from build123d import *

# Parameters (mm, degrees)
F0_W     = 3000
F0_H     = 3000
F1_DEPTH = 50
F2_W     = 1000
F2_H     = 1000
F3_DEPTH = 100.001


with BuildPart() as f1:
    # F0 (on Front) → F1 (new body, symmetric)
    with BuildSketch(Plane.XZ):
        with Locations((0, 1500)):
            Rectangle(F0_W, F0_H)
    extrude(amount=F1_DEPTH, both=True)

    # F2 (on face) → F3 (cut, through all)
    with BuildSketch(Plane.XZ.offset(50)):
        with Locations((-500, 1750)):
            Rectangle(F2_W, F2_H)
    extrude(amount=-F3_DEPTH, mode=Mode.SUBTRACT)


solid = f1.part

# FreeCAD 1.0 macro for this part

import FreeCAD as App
import Part
import Sketcher
Q = App.Units.Quantity


def add_polygon(sketch, points):
    """Adds a closed chain of lines whose ends are joined by coincident constraints."""
    first, n = sketch.GeometryCount, len(points)
    for a, b in zip(points, points[1:] + points[:1]):
        sketch.addGeometry(Part.LineSegment(App.Vector(*a, 0), App.Vector(*b, 0)), False)
    for i in range(n):
        sketch.addConstraint(Sketcher.Constraint("Coincident", first + i, 2, first + (i + 1) % n, 1))

doc = App.newDocument("Part")
params = doc.addObject("Spreadsheet::Sheet", "Params")
for row, (alias, value) in enumerate([
    ("sketch1_width", "3000 mm"),
    ("pad1_length", "100 mm"),
    ("sketch2_width", "1000 mm"),
], start=1):
    params.set(f"A{row}", alias)
    params.set(f"B{row}", "=" + value)
    params.setAlias(f"B{row}", alias)

body = doc.addObject("PartDesign::Body", "Body")

sketch1 = body.newObject("Sketcher::SketchObject", "Sketch")
sketch1.AttachmentSupport = (doc.getObject("XZ_Plane"), [""])
sketch1.MapMode = "FlatFace"
add_polygon(sketch1, [(-1500, 3000), (-1500, 0), (1500, 0), (1500, 3000)])
sketch1.addConstraint([
    Sketcher.Constraint("Vertical", 0),
    Sketcher.Constraint("Horizontal", 1),
    Sketcher.Constraint("Vertical", 2),
    Sketcher.Constraint("Horizontal", 3),
    Sketcher.Constraint("Symmetric", 0, 2, 1, 2, -1, 1),
    Sketcher.Constraint("Equal", 3, 0),
    Sketcher.Constraint("DistanceX", 1, 1, 1, 2, Q("3000 mm")),
])
sketch1.setExpression("Constraints[10]", "Params.sketch1_width")
pad1 = body.newObject("PartDesign::Pad", "Pad")
pad1.Profile = sketch1
pad1.setExpression("Length", "Params.pad1_length")
pad1.Midplane = True

sketch2 = body.newObject("Sketcher::SketchObject", "Sketch001")
sketch2.AttachmentSupport = (doc.getObject("XZ_Plane"), [""])
sketch2.MapMode = "FlatFace"
sketch2.AttachmentOffset = App.Placement(App.Vector(0, 0, 50), App.Rotation())
add_polygon(sketch2, [(-1000, 2250), (-1000, 1250), (0, 1250), (0, 2250)])
sketch2.addConstraint([
    Sketcher.Constraint("Vertical", 0),
    Sketcher.Constraint("Horizontal", 1),
    Sketcher.Constraint("Vertical", 2),
    Sketcher.Constraint("Horizontal", 3),
    Sketcher.Constraint("PointOnObject", 1, 2, -2),
    Sketcher.Constraint("Equal", 3, 0),
    Sketcher.Constraint("DistanceX", 1, 1, 1, 2, Q("1000 mm")),
    Sketcher.Constraint("DistanceY", -1, 1, 0, 2, Q("1250 mm")),
])
sketch2.setExpression("Constraints[10]", "Params.sketch2_width")
pocket1 = body.newObject("PartDesign::Pocket", "Pocket")
pocket1.Profile = sketch2
pocket1.Type = "ThroughAll"

doc.recompute()
